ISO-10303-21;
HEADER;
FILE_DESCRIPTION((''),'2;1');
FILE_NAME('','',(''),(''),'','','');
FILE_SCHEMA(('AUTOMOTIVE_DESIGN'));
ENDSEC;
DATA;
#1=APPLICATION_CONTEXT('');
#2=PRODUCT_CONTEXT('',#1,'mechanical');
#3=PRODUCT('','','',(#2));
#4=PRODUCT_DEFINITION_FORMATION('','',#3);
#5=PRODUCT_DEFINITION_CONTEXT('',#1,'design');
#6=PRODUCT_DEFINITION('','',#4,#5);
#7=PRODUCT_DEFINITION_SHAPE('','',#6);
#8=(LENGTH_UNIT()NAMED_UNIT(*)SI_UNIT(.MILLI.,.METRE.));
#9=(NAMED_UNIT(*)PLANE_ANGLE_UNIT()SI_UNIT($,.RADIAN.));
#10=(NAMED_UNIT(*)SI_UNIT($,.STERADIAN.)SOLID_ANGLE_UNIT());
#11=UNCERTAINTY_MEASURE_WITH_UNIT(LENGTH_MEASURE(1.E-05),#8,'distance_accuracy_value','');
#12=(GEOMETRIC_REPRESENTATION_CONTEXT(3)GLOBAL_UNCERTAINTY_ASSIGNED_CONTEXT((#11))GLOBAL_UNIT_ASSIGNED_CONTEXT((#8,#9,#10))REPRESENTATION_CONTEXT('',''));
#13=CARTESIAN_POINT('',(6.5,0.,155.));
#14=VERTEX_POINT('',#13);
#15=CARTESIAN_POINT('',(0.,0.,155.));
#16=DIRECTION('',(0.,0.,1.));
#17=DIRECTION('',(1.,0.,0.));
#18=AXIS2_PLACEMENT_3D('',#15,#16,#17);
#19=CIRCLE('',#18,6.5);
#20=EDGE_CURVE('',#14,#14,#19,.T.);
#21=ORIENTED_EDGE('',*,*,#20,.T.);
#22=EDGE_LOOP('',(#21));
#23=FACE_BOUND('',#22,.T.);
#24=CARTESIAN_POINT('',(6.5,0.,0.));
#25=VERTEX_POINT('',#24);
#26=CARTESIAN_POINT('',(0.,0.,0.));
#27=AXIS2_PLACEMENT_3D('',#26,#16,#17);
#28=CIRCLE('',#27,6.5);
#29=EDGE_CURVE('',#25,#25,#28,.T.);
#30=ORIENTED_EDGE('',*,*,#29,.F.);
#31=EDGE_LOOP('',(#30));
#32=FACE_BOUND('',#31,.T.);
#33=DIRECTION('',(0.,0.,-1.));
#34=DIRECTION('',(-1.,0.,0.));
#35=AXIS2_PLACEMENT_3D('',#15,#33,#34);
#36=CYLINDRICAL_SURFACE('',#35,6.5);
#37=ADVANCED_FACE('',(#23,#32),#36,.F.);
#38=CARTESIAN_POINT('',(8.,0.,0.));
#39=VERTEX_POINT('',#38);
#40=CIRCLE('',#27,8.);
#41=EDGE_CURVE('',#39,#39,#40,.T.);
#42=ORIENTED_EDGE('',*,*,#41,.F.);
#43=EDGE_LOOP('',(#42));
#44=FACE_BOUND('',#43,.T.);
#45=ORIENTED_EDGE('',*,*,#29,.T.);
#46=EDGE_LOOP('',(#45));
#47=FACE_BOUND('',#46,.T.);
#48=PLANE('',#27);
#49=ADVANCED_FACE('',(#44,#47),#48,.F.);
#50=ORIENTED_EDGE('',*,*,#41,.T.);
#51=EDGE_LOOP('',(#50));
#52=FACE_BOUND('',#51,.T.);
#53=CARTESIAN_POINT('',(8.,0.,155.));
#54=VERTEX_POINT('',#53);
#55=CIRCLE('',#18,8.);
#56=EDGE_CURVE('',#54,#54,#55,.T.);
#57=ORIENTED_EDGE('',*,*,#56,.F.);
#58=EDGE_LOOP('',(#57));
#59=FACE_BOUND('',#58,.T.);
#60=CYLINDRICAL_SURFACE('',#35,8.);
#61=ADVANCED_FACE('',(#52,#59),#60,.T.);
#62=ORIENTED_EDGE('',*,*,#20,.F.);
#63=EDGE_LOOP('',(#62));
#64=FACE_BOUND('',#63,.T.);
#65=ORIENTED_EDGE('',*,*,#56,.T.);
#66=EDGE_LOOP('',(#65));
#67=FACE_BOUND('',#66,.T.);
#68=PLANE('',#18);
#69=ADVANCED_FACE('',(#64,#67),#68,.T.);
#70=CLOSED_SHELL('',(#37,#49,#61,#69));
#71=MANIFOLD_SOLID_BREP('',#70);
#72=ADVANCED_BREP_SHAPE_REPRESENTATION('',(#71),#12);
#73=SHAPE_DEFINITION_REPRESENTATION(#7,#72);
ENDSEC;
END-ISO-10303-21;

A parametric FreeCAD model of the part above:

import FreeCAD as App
import Part
import Sketcher

V = App.Vector
Q = App.Units.Quantity

doc = App.newDocument("Part")
params = doc.addObject("Spreadsheet::Sheet", "Params")
for row, (alias, value) in enumerate([
    ("sketch1_diameter", "16 mm"),
    ("sketch1_diameter2", "13 mm"),
    ("pad1_length", "155 mm"),
], start=1):
    params.set(f"A{row}", alias)
    params.set(f"B{row}", "=" + value)
    params.setAlias(f"B{row}", alias)

body = doc.addObject("PartDesign::Body", "Body")

# Sketch on XY plane
sketch1 = body.newObject("Sketcher::SketchObject", "Sketch")
sketch1.AttachmentSupport = (doc.getObject("XY_Plane"), [""])
sketch1.MapMode = "FlatFace"
sketch1.addGeometry([
    Part.Circle(V(0, 0, 0), V(0, 0, 1), 8),
    Part.Circle(V(0, 0, 0), V(0, 0, 1), 6.5),
], False)
sketch1.addConstraint([
    Sketcher.Constraint("Coincident", 0, 3, -1, 1),
    Sketcher.Constraint("Coincident", 1, 3, -1, 1),
    Sketcher.Constraint("Diameter", 0, Q("16 mm")),
    Sketcher.Constraint("Diameter", 1, Q("13 mm")),
])
sketch1.setExpression("Constraints[2]", "Params.sketch1_diameter")
sketch1.setExpression("Constraints[3]", "Params.sketch1_diameter2")
pad1 = body.newObject("PartDesign::Pad", "Pad")
pad1.Profile = sketch1
pad1.setExpression("Length", "Params.pad1_length")

doc.recompute()
